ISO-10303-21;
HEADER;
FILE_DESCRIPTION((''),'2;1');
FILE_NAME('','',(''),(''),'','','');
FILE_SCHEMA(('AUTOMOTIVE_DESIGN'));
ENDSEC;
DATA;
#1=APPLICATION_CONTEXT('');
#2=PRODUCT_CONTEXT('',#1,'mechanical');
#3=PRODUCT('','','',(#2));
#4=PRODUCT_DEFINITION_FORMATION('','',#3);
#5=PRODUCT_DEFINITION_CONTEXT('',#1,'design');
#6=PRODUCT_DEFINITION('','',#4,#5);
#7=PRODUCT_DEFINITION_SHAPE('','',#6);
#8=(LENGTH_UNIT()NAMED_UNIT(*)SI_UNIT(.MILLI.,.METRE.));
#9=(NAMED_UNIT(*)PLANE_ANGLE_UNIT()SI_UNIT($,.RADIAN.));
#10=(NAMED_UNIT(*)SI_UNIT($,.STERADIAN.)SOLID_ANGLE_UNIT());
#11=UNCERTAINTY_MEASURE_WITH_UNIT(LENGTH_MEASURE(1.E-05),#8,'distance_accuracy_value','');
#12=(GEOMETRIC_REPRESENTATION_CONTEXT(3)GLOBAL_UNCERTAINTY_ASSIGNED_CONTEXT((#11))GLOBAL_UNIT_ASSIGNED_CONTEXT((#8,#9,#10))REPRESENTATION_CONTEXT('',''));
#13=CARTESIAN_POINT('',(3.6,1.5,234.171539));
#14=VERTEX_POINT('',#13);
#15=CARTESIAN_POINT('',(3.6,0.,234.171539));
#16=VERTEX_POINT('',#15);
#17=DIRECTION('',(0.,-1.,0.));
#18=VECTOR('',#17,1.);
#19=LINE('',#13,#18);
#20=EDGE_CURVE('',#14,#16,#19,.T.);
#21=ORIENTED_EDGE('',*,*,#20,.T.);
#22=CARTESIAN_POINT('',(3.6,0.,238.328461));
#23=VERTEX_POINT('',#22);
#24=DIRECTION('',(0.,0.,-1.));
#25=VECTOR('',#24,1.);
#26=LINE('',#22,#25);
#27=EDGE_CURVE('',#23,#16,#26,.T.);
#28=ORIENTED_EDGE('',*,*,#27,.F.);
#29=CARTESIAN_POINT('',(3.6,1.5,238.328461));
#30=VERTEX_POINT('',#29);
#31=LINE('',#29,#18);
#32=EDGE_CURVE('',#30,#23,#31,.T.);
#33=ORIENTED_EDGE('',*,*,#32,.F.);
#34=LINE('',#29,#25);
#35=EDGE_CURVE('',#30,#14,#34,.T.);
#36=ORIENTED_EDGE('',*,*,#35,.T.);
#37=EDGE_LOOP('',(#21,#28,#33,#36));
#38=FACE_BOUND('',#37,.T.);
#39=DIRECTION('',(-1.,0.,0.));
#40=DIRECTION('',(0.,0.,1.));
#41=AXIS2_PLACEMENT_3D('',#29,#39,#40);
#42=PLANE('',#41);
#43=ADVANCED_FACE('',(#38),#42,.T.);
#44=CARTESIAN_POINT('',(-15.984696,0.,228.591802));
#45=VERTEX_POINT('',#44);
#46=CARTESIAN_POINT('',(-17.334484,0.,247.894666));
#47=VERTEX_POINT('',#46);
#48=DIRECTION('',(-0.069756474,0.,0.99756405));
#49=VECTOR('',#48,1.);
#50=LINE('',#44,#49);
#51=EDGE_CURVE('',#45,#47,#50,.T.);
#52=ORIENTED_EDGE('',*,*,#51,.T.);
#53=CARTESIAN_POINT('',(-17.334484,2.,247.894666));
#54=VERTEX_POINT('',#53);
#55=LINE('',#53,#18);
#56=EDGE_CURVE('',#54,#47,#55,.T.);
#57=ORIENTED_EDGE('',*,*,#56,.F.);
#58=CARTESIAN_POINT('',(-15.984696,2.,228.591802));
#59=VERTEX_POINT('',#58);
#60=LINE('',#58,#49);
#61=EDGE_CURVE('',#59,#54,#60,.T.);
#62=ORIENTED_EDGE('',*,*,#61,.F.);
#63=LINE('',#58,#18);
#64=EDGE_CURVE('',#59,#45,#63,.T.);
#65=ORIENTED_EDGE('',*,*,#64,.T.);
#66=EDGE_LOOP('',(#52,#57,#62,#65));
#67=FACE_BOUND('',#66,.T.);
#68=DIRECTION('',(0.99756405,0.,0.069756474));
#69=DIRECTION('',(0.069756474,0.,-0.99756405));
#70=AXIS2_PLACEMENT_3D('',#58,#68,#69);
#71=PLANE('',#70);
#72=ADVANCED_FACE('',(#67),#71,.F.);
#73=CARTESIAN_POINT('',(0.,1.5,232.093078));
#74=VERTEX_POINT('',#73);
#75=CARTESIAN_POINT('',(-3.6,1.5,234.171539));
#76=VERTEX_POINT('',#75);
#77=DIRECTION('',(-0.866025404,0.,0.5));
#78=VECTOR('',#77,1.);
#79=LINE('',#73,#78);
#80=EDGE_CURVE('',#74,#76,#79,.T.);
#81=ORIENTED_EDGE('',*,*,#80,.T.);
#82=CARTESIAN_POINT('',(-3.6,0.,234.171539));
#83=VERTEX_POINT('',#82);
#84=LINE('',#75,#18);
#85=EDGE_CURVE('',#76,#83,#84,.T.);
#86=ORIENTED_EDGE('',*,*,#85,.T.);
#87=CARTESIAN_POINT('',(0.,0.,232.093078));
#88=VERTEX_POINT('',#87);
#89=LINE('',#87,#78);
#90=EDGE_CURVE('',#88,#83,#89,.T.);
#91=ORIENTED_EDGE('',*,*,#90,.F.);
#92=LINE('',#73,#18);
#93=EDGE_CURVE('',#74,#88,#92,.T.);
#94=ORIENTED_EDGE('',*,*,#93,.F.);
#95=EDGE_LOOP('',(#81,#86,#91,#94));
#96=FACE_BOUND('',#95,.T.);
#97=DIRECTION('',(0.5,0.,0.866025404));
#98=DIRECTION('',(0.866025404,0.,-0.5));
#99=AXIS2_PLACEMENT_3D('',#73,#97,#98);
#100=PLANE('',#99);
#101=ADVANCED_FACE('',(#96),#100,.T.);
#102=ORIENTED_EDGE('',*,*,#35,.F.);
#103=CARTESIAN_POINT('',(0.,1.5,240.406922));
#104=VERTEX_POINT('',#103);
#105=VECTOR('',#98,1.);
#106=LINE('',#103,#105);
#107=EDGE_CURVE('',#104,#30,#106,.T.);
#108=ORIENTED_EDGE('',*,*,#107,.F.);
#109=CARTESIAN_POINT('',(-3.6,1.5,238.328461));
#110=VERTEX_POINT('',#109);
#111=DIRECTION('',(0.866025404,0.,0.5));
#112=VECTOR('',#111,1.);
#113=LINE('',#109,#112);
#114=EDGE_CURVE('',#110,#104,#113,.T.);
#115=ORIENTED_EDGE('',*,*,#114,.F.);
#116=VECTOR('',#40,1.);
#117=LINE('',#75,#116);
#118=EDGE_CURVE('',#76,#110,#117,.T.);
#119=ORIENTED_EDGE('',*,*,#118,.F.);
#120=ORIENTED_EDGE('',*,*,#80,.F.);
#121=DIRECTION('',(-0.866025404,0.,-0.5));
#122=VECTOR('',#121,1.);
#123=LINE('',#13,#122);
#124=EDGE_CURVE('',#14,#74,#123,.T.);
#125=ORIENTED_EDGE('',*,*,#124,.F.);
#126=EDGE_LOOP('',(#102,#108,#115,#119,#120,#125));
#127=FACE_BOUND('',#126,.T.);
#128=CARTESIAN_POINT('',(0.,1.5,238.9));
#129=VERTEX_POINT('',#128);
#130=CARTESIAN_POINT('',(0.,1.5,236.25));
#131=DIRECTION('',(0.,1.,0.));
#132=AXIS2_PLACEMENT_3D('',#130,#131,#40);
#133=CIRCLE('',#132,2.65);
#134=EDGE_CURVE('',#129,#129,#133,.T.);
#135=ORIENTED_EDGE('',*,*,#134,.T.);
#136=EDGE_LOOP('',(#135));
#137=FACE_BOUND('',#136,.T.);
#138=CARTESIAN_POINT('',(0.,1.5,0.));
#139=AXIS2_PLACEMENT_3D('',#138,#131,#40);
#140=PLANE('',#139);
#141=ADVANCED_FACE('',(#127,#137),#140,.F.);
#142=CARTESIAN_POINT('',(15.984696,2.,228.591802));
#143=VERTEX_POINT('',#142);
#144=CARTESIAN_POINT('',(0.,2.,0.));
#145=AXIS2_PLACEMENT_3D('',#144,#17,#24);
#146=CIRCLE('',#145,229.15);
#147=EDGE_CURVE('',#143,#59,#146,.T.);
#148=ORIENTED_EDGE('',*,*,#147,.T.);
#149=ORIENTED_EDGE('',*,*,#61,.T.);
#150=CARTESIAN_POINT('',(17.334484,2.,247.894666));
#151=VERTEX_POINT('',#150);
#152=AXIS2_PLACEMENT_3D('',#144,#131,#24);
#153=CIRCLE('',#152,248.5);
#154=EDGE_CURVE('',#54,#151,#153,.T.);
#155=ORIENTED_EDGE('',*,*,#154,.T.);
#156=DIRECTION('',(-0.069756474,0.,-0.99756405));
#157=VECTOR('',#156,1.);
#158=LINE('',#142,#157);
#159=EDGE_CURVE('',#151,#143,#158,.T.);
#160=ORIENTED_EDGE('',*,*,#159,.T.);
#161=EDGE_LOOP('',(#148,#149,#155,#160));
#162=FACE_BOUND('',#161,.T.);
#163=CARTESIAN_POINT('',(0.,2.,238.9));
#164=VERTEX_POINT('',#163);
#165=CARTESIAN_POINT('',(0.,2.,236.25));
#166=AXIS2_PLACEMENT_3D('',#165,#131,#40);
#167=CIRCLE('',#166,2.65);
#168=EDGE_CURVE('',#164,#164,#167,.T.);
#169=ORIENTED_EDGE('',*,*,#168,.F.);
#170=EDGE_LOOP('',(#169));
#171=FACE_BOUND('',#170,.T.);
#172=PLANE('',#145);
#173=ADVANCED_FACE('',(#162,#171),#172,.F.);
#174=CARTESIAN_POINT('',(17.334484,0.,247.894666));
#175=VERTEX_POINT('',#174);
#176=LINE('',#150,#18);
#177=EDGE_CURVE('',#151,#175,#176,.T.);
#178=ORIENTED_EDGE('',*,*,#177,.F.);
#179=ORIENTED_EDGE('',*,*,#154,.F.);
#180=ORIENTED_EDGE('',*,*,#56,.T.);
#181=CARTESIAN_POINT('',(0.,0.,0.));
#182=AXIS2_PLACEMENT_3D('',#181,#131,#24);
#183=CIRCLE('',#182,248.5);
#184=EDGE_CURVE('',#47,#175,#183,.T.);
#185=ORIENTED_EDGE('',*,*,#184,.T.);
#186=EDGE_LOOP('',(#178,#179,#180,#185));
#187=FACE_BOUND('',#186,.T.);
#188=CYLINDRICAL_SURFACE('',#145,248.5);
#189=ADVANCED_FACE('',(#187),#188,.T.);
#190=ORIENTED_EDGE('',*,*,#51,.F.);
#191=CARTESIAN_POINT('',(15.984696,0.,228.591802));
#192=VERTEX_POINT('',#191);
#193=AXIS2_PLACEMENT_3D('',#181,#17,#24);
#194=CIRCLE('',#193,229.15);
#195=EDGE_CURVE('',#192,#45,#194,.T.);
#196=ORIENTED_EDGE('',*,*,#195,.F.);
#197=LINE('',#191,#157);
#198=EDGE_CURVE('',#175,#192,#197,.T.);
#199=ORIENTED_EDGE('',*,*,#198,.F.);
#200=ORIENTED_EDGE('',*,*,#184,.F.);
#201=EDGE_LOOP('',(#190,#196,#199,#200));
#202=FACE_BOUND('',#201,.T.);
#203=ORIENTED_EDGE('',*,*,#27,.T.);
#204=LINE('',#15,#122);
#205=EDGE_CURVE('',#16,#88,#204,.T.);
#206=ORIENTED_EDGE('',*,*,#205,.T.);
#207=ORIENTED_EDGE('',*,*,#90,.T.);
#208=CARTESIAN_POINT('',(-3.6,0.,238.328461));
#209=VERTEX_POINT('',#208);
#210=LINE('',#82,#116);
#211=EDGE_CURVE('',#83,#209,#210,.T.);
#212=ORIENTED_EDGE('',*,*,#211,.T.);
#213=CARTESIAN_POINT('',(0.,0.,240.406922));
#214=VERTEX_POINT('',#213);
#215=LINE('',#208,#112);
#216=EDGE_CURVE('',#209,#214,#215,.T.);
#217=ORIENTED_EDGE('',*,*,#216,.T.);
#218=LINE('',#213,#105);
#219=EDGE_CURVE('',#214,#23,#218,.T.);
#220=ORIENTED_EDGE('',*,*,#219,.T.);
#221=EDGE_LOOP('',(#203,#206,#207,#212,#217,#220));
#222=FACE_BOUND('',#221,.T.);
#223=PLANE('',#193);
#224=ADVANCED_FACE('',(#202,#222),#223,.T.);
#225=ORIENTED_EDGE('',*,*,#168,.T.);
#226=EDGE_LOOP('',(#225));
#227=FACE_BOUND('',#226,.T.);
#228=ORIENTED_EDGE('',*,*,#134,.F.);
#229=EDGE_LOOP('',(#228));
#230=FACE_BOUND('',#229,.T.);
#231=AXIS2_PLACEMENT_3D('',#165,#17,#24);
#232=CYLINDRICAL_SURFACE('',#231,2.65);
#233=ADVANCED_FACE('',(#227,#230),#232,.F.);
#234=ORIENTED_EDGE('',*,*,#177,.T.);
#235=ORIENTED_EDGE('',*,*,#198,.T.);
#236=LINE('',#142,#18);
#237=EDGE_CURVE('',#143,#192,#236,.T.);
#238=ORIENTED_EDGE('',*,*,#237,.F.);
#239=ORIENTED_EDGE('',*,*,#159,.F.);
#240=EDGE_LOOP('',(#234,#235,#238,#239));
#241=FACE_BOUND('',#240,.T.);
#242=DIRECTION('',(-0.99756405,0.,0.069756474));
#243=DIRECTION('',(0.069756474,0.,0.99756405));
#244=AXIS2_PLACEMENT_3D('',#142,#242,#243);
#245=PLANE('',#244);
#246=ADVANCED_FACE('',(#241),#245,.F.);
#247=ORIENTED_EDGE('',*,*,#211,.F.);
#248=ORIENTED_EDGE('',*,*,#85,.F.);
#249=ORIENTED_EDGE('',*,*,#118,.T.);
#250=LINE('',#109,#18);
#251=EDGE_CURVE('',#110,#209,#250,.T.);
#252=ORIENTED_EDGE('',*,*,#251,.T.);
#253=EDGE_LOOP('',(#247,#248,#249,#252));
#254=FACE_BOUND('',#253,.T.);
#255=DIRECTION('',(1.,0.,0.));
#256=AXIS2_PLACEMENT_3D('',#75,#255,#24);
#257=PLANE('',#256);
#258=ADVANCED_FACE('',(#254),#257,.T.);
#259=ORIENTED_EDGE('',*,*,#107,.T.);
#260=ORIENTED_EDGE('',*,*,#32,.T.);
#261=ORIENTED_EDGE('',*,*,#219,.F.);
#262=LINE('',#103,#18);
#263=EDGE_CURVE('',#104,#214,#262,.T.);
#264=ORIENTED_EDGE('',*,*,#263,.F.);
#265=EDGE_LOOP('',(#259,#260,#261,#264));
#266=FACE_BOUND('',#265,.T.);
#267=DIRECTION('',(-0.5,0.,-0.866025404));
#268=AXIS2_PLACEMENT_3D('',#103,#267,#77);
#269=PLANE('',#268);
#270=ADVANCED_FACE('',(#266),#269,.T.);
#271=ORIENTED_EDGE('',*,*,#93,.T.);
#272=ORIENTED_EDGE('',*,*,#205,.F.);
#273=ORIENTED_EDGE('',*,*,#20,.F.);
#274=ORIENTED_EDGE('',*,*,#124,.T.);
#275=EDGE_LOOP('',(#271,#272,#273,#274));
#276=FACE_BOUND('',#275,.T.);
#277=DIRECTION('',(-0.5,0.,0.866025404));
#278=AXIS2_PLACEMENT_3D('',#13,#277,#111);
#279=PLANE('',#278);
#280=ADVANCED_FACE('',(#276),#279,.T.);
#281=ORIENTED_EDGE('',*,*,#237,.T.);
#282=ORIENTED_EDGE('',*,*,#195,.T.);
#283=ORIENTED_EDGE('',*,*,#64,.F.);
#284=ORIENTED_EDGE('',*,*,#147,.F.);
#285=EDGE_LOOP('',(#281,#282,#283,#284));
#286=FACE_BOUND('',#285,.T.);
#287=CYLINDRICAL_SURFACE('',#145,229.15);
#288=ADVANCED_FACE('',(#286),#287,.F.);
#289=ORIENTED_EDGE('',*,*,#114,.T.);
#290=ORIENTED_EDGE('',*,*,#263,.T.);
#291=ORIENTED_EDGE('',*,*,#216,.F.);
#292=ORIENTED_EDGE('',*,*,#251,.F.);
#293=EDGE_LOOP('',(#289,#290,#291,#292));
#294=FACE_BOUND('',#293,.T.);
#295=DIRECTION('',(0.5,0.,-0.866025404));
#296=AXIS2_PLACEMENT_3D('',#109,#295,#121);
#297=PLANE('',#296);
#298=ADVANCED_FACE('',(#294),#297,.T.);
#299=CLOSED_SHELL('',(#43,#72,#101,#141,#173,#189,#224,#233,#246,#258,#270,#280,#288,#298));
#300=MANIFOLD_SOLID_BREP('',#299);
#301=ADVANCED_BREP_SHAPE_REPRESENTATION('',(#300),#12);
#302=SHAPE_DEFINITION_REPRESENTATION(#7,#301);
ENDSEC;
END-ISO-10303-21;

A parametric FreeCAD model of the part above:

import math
import FreeCAD as App
import Part
import Sketcher

V = App.Vector
Q = App.Units.Quantity

doc = App.newDocument("Part")
body = doc.addObject("PartDesign::Body", "Body")

sketch1 = doc.addObject("Sketcher::SketchObject", "Sketch")
body.addObject(sketch1)
sketch1.AttachmentSupport = (doc.XZ_Plane, [""])
sketch1.MapMode = "FlatFace"
sketch1.addGeometry(Part.LineSegment(V(-16, 228.6, 0), V(-17.3, 247.9, 0)), False)
sketch1.addGeometry(Part.ArcOfCircle(Part.Circle(V(0, 0, 0), V(0, 0, 1), 248.5), math.radians(86), math.radians(94)), False)
sketch1.addGeometry(Part.LineSegment(V(17.3, 247.9, 0), V(16, 228.6, 0)), False)
sketch1.addGeometry(Part.ArcOfCircle(Part.Circle(V(0, 0, 0), V(0, 0, 1), 229.1), math.radians(86), math.radians(94)), False)
sketch1.addGeometry(Part.Circle(V(0, 236.2, 0), V(0, 0, 1), 2.6), False)
sketch1.addConstraint(Sketcher.Constraint("Coincident", 0, 2, 1, 2))
sketch1.addConstraint(Sketcher.Constraint("Coincident", 1, 1, 2, 1))
sketch1.addConstraint(Sketcher.Constraint("Coincident", 2, 2, 3, 1))
sketch1.addConstraint(Sketcher.Constraint("Coincident", 3, 2, 0, 1))
sketch1.addConstraint(Sketcher.Constraint("Coincident", 1, 3, -1, 1))
sketch1.addConstraint(Sketcher.Constraint("Coincident", 3, 3, -1, 1))
sketch1.addConstraint(Sketcher.Constraint("PointOnObject", 4, 3, -2))
sketch1.addConstraint(Sketcher.Constraint("Horizontal", 0, 2, 1, 1))
sketch1.addConstraint(Sketcher.Constraint("Horizontal", 2, 2, 3, 2))
sketch1.addConstraint(Sketcher.Constraint("Diameter", 4, Q("5.3 mm")))
sketch1.addConstraint(Sketcher.Constraint("Radius", 1, Q("248.5 mm")))
sketch1.addConstraint(Sketcher.Constraint("Angle", 0, Q("94 deg")))
sketch1.addConstraint(Sketcher.Constraint("Radius", 3, Q("229.15 mm")))
sketch1.addConstraint(Sketcher.Constraint("DistanceY", -1, 1, 4, 3, Q("236.25 mm")))
sketch1.addConstraint(Sketcher.Constraint("DistanceX", 0, 2, 2, 2, Q("33.31918 mm")))
pad1 = doc.addObject("PartDesign::Pad", "Pad")
body.addObject(pad1)
pad1.Profile = sketch1
pad1.Length = 2
pad1.Reversed = True

sketch2 = doc.addObject("Sketcher::SketchObject", "Sketch001")
body.addObject(sketch2)
sketch2.AttachmentSupport = (doc.XZ_Plane, [""])
sketch2.MapMode = "FlatFace"
sketch2.addGeometry(Part.LineSegment(V(0, 240.4, 0), V(3.6, 238.3, 0)), False)
sketch2.addGeometry(Part.LineSegment(V(3.6, 238.3, 0), V(3.6, 234.2, 0)), False)
sketch2.addGeometry(Part.LineSegment(V(3.6, 234.2, 0), V(0, 232.1, 0)), False)
sketch2.addGeometry(Part.LineSegment(V(0, 232.1, 0), V(-3.6, 234.2, 0)), False)
sketch2.addGeometry(Part.LineSegment(V(-3.6, 234.2, 0), V(-3.6, 238.3, 0)), False)
sketch2.addGeometry(Part.LineSegment(V(-3.6, 238.3, 0), V(0, 240.4, 0)), False)
sketch2.addConstraint(Sketcher.Constraint("Coincident", 0, 2, 1, 1))
sketch2.addConstraint(Sketcher.Constraint("Coincident", 1, 2, 2, 1))
sketch2.addConstraint(Sketcher.Constraint("Coincident", 2, 2, 3, 1))
sketch2.addConstraint(Sketcher.Constraint("Coincident", 3, 2, 4, 1))
sketch2.addConstraint(Sketcher.Constraint("Coincident", 4, 2, 5, 1))
sketch2.addConstraint(Sketcher.Constraint("Coincident", 5, 2, 0, 1))
sketch2.addConstraint(Sketcher.Constraint("Vertical", 1))
sketch2.addConstraint(Sketcher.Constraint("Vertical", 4))
sketch2.addConstraint(Sketcher.Constraint("Symmetric", 1, 2, 3, 2, -2))
sketch2.addConstraint(Sketcher.Constraint("PointOnObject", 2, 2, -2))
sketch2.addConstraint(Sketcher.Constraint("PointOnObject", 5, 2, -2))
sketch2.addConstraint(Sketcher.Constraint("Parallel", 0, 3))
sketch2.addConstraint(Sketcher.Constraint("Parallel", 2, 5))
sketch2.addConstraint(Sketcher.Constraint("Angle", 0, Q("-30 deg")))
sketch2.addConstraint(Sketcher.Constraint("DistanceX", -1, 1, 0, 2, Q("3.6 mm")))
sketch2.addConstraint(Sketcher.Constraint("DistanceY", 1, 2, 1, 1, Q("4.156922 mm")))
sketch2.addConstraint(Sketcher.Constraint("DistanceY", -1, 1, 0, 2, Q("238.328461 mm")))
pocket1 = doc.addObject("PartDesign::Pocket", "Pocket")
body.addObject(pocket1)
pocket1.Profile = sketch2
pocket1.Length = 1.5

doc.recompute()
